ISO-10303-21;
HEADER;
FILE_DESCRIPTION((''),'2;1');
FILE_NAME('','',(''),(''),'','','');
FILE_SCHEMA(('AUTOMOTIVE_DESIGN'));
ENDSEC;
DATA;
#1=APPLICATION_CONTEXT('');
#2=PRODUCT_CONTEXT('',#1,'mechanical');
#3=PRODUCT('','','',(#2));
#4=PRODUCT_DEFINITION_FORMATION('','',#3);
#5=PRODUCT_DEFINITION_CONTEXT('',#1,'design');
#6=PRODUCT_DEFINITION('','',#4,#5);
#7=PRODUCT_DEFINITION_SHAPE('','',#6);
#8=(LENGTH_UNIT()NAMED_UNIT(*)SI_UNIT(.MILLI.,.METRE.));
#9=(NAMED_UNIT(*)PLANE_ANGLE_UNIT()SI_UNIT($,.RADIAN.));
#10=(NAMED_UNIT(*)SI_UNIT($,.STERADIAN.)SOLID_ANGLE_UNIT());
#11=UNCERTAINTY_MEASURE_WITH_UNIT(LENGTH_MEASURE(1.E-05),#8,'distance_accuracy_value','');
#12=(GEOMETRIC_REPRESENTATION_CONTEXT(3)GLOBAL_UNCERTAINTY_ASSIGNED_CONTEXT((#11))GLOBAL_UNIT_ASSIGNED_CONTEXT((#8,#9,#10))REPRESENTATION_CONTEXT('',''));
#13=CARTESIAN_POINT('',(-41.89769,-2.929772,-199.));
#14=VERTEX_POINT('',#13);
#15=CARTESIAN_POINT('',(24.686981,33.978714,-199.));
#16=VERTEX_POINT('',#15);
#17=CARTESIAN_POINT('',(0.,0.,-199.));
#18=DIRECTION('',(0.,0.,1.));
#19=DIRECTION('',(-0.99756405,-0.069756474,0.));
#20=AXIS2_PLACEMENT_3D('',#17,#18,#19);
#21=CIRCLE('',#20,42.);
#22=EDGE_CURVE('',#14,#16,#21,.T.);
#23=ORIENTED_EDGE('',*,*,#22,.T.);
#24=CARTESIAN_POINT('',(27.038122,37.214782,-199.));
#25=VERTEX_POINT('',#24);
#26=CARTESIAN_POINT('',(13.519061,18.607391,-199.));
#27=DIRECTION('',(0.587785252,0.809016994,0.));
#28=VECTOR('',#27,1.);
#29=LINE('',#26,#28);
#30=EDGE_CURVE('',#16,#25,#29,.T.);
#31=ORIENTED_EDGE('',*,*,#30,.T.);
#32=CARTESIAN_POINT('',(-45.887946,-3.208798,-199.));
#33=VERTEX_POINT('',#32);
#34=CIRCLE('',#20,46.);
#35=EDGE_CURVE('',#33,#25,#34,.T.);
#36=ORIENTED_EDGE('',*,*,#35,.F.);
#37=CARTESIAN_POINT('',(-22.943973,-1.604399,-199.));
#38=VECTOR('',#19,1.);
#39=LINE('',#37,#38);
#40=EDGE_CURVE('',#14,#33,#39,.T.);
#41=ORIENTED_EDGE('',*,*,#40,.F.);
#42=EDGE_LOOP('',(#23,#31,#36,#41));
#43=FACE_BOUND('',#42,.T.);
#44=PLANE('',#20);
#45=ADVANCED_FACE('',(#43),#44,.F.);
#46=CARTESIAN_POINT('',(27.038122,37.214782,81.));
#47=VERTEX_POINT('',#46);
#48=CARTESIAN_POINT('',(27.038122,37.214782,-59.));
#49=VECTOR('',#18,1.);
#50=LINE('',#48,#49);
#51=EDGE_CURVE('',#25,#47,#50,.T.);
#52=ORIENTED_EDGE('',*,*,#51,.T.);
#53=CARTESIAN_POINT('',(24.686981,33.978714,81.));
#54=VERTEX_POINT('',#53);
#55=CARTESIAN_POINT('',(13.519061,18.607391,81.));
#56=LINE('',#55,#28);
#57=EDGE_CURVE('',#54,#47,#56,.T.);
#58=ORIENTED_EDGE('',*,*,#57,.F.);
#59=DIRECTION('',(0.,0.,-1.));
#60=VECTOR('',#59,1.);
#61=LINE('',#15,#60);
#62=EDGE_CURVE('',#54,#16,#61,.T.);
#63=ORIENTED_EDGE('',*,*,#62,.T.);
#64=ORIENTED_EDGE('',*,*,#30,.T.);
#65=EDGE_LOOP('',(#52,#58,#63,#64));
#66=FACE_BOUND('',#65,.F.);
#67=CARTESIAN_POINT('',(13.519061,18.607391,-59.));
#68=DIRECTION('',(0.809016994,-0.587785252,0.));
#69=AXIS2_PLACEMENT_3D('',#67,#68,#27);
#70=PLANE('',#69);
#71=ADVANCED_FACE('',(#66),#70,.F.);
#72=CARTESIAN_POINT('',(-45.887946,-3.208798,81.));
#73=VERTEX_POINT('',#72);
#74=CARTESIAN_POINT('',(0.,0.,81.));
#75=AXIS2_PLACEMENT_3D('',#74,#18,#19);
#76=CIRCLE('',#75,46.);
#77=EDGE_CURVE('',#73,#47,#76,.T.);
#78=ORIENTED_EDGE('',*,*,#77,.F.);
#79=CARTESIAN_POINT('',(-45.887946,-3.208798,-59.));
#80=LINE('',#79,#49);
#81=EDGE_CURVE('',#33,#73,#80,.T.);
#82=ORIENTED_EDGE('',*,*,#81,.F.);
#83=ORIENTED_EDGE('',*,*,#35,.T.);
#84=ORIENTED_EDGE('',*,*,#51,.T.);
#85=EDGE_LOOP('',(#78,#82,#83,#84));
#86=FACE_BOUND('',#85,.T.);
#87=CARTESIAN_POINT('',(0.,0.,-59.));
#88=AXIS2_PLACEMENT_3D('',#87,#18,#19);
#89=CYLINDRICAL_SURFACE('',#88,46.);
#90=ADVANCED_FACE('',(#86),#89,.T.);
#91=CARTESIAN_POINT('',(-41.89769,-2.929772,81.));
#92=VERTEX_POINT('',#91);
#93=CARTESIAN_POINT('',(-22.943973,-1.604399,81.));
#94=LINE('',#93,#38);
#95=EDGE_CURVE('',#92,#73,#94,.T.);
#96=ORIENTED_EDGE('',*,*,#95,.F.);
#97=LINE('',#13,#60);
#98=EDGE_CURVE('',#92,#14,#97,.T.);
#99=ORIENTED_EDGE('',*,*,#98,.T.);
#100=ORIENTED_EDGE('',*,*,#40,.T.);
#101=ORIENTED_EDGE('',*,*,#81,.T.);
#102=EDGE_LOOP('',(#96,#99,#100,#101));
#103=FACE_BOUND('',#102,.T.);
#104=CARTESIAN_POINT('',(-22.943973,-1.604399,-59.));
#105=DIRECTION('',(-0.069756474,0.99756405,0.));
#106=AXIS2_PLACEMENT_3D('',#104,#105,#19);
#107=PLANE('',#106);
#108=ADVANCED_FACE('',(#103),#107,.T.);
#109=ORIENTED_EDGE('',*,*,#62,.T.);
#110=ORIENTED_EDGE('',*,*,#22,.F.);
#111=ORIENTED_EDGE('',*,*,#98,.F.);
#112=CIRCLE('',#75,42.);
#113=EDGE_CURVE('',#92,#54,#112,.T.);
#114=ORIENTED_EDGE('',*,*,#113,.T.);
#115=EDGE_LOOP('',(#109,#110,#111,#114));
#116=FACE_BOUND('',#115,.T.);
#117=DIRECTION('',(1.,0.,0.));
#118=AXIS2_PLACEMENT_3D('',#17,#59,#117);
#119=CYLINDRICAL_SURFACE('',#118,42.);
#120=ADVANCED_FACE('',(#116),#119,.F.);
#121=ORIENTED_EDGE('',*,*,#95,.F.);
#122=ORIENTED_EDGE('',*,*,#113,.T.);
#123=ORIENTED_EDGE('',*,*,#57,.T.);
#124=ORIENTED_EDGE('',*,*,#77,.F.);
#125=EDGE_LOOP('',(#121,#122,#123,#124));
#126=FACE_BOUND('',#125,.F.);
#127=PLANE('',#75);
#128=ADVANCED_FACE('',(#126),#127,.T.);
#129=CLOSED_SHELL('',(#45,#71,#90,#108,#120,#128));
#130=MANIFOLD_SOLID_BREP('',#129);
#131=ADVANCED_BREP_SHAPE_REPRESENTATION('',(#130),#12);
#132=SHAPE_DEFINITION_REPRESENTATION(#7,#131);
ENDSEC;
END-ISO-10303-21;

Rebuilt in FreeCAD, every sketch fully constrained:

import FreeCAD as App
import Part
import Sketcher
from FreeCAD import Vector
Q = App.Units.Quantity


def add_polygon(sketch, points):
    """Adds a closed chain of lines whose ends are joined by coincident constraints."""
    first, n = sketch.GeometryCount, len(points)
    for a, b in zip(points, points[1:] + points[:1]):
        sketch.addGeometry(Part.LineSegment(App.Vector(*a, 0), App.Vector(*b, 0)), False)
    for i in range(n):
        sketch.addConstraint(Sketcher.Constraint("Coincident", first + i, 2, first + (i + 1) % n, 1))

doc = App.newDocument("Part")
body = doc.addObject("PartDesign::Body", "Body")

# Sketch on XY plane
sketch1 = body.newObject("Sketcher::SketchObject", "Sketch")
sketch1.AttachmentSupport = (doc.getObject("XY_Plane"), [""])
sketch1.MapMode = "FlatFace"
sketch1.AttachmentOffset = App.Placement(Vector(0, 0, -207), App.Rotation())
sketch1.addGeometry(Part.Circle(Vector(0, 0, 0), Vector(0, 0, 1), 42), False)
sketch1.addConstraint(Sketcher.Constraint("Coincident", 0, 3, -1, 1))
sketch1.addConstraint(Sketcher.Constraint("Diameter", 0, Q("84 mm")))
pad1 = body.newObject("PartDesign::Pad", "Pad")
pad1.Profile = sketch1
pad1.Length = 297
body2 = doc.addObject("PartDesign::Body", "Body001")

# Sketch on XZ plane
sketch2 = body2.newObject("Sketcher::SketchObject", "Sketch001")
sketch2.AttachmentSupport = (doc.getObject("XZ_Plane001"), [""])
sketch2.MapMode = "FlatFace"
add_polygon(sketch2, [(0, 280), (0, 0), (46, 0), (46, 280)])  # lines 0-3
sketch2.addConstraint(Sketcher.Constraint("Vertical", 0))
sketch2.addConstraint(Sketcher.Constraint("Horizontal", 1))
sketch2.addConstraint(Sketcher.Constraint("Vertical", 2))
sketch2.addConstraint(Sketcher.Constraint("Horizontal", 3))
sketch2.addConstraint(Sketcher.Constraint("Coincident", 0, 2, -1, 1))
sketch2.addConstraint(Sketcher.Constraint("DistanceX", 1, 1, 1, 2, Q("46 mm")))
sketch2.addConstraint(Sketcher.Constraint("DistanceY", 0, 2, 0, 1, Q("280 mm")))
revolution = body2.newObject("PartDesign::Revolution", "Revolution")
revolution.Profile = sketch2
revolution.ReferenceAxis = (sketch2, ["V_Axis"])
revolution.Angle = 230
body3 = doc.addObject("PartDesign::Body", "Body002")
doc.recompute()

body2.Placement = App.Placement(Vector(0, 0, -207), App.Rotation(Vector(0, 0, 1), 184))
boolean = body3.newObject("PartDesign::Boolean", "Boolean")
boolean.Type = "Fuse"
boolean.addObjects([body2])
doc.recompute()

boolean2 = body3.newObject("PartDesign::Boolean", "Boolean001")
boolean2.Type = "Cut"
boolean2.addObjects([body])
body4 = doc.addObject("PartDesign::Body", "Body003")
doc.recompute()

body3.Placement = App.Placement(Vector(0, 0, 8), App.Rotation(Vector(0, 0, 1), 0))
boolean3 = body4.newObject("PartDesign::Boolean", "Boolean002")
boolean3.Type = "Fuse"
boolean3.addObjects([body3])

doc.recompute()
